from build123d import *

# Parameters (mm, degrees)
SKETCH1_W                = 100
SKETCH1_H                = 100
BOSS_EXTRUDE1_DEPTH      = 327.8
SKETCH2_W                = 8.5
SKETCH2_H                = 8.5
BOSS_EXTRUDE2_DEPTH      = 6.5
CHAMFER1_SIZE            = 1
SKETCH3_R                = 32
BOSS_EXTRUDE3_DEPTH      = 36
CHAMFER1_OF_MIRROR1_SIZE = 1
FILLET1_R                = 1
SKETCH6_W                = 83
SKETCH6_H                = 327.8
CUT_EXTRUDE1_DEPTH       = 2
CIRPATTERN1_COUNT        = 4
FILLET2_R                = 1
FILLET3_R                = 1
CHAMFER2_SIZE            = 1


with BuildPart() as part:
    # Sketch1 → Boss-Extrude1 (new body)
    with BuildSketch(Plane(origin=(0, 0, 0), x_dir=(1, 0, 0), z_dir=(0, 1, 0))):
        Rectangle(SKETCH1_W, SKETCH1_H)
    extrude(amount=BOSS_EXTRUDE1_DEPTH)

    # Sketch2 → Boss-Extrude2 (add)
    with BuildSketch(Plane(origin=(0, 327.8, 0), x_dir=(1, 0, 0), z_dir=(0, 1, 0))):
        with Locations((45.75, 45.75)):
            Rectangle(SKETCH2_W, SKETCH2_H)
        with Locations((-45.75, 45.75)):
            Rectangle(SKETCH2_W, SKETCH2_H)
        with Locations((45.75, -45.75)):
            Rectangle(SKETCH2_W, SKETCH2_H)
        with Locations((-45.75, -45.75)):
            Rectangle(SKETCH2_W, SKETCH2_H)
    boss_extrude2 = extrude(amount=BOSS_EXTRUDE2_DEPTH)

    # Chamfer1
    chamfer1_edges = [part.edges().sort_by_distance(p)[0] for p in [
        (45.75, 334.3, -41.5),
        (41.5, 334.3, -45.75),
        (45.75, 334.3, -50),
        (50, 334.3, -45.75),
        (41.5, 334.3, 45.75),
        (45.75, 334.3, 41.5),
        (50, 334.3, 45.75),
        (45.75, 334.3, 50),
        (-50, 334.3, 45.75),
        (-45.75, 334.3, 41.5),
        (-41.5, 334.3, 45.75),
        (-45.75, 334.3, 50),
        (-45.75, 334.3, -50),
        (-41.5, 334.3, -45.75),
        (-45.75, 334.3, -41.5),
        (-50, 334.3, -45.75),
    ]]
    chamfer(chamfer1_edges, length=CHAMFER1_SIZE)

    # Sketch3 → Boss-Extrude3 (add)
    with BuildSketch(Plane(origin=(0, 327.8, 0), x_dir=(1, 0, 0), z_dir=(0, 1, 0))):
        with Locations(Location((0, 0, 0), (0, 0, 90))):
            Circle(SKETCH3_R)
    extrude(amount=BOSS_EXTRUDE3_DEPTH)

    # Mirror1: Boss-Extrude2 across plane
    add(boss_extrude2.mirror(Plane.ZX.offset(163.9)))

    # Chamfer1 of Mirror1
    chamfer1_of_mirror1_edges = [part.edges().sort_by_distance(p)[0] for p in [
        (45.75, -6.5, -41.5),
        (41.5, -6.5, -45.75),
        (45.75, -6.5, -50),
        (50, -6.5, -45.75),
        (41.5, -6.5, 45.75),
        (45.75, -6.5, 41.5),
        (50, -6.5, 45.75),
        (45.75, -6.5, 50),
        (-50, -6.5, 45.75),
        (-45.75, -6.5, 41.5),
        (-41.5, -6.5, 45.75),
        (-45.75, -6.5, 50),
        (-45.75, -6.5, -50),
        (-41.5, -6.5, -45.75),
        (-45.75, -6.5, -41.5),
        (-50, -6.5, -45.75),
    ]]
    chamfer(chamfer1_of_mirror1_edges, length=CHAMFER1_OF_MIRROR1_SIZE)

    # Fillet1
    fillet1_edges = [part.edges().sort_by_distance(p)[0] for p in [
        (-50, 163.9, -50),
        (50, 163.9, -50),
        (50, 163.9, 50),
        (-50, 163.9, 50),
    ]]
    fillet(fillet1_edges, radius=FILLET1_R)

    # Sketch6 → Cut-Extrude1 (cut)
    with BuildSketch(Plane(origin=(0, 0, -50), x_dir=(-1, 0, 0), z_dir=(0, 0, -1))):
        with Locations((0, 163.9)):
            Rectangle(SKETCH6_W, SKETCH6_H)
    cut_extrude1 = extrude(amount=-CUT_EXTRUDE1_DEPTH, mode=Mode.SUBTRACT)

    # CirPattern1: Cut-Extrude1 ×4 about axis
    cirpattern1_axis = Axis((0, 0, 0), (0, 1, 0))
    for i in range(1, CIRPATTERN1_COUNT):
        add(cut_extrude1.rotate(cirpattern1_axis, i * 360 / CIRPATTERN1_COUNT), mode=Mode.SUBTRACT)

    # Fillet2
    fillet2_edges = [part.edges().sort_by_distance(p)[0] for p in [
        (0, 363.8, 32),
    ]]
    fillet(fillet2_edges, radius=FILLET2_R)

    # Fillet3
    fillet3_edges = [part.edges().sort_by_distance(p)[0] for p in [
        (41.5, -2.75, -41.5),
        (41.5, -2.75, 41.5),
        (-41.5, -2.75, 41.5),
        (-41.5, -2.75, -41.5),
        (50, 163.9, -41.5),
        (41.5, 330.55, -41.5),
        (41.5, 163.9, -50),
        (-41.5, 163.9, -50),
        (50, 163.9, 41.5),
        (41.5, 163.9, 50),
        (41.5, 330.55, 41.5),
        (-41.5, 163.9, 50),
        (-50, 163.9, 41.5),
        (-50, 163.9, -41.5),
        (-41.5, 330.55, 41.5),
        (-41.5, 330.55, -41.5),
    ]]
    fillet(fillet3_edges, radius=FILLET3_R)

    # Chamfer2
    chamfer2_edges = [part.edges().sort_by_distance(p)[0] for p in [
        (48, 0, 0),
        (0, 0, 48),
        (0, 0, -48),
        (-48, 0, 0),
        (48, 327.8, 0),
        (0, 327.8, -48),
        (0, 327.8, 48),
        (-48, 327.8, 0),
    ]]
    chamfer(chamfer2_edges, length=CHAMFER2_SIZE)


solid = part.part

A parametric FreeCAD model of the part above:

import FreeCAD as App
import Part
import Sketcher
Q = App.Units.Quantity


def edges_at(feature, points):
    """Names of the edges that pass closest to the given points."""
    edges = feature.Shape.Edges
    near = lambda p: min(range(len(edges)), key=lambda i: edges[i].distToShape(Part.Vertex(*p))[0])
    return sorted({f"Edge{near(p) + 1}" for p in points})

doc = App.newDocument("Part")
body = doc.addObject("PartDesign::Body", "Body")

sketch1 = body.newObject("Sketcher::SketchObject", "Sketch")
sketch1.AttachmentSupport = (doc.getObject("XZ_Plane"), [""])
sketch1.MapMode = "FlatFace"
sketch1.addGeometry([
    Part.LineSegment(App.Vector(-50, -50, 0), App.Vector(-50, 50, 0)),
    Part.LineSegment(App.Vector(-50, 50, 0), App.Vector(50, 50, 0)),
    Part.LineSegment(App.Vector(50, 50, 0), App.Vector(50, -50, 0)),
    Part.LineSegment(App.Vector(50, -50, 0), App.Vector(-50, -50, 0)),
], False)
sketch1.addConstraint([
    Sketcher.Constraint("Coincident", 0, 2, 1, 1),
    Sketcher.Constraint("Coincident", 1, 2, 2, 1),
    Sketcher.Constraint("Coincident", 2, 2, 3, 1),
    Sketcher.Constraint("Coincident", 3, 2, 0, 1),
    Sketcher.Constraint("Vertical", 0),
    Sketcher.Constraint("Horizontal", 1),
    Sketcher.Constraint("Vertical", 2),
    Sketcher.Constraint("Horizontal", 3),
    Sketcher.Constraint("Symmetric", 0, 2, 2, 2, -1, 1),
    Sketcher.Constraint("Equal", 3, 0),
    Sketcher.Constraint("DistanceX", 1, 1, 1, 2, Q("100 mm")),
])
pad1 = body.newObject("PartDesign::Pad", "Pad")
pad1.Profile = sketch1
pad1.Length = 327.8
pad1.Reversed = True

sketch2 = body.newObject("Sketcher::SketchObject", "Sketch001")
sketch2.AttachmentSupport = (doc.getObject("XZ_Plane"), [""])
sketch2.MapMode = "FlatFace"
sketch2.AttachmentOffset = App.Placement(App.Vector(0, 0, -327.8), App.Rotation())
sketch2.addGeometry([
    Part.LineSegment(App.Vector(41.5, -50, 0), App.Vector(41.5, -41.5, 0)),
    Part.LineSegment(App.Vector(41.5, -41.5, 0), App.Vector(50, -41.5, 0)),
    Part.LineSegment(App.Vector(50, -41.5, 0), App.Vector(50, -50, 0)),
    Part.LineSegment(App.Vector(50, -50, 0), App.Vector(41.5, -50, 0)),
    Part.LineSegment(App.Vector(-50, -50, 0), App.Vector(-50, -41.5, 0)),
    Part.LineSegment(App.Vector(-50, -41.5, 0), App.Vector(-41.5, -41.5, 0)),
    Part.LineSegment(App.Vector(-41.5, -41.5, 0), App.Vector(-41.5, -50, 0)),
    Part.LineSegment(App.Vector(-41.5, -50, 0), App.Vector(-50, -50, 0)),
    Part.LineSegment(App.Vector(41.5, 41.5, 0), App.Vector(41.5, 50, 0)),
    Part.LineSegment(App.Vector(41.5, 50, 0), App.Vector(50, 50, 0)),
    Part.LineSegment(App.Vector(50, 50, 0), App.Vector(50, 41.5, 0)),
    Part.LineSegment(App.Vector(50, 41.5, 0), App.Vector(41.5, 41.5, 0)),
    Part.LineSegment(App.Vector(-50, 41.5, 0), App.Vector(-50, 50, 0)),
    Part.LineSegment(App.Vector(-50, 50, 0), App.Vector(-41.5, 50, 0)),
    Part.LineSegment(App.Vector(-41.5, 50, 0), App.Vector(-41.5, 41.5, 0)),
    Part.LineSegment(App.Vector(-41.5, 41.5, 0), App.Vector(-50, 41.5, 0)),
], False)
sketch2.addConstraint([
    Sketcher.Constraint("Coincident", 0, 2, 1, 1),
    Sketcher.Constraint("Coincident", 1, 2, 2, 1),
    Sketcher.Constraint("Coincident", 2, 2, 3, 1),
    Sketcher.Constraint("Coincident", 3, 2, 0, 1),
    Sketcher.Constraint("Coincident", 4, 2, 5, 1),
    Sketcher.Constraint("Coincident", 5, 2, 6, 1),
    Sketcher.Constraint("Coincident", 6, 2, 7, 1),
    Sketcher.Constraint("Coincident", 7, 2, 4, 1),
    Sketcher.Constraint("Coincident", 8, 2, 9, 1),
    Sketcher.Constraint("Coincident", 9, 2, 10, 1),
    Sketcher.Constraint("Coincident", 10, 2, 11, 1),
    Sketcher.Constraint("Coincident", 11, 2, 8, 1),
    Sketcher.Constraint("Coincident", 12, 2, 13, 1),
    Sketcher.Constraint("Coincident", 13, 2, 14, 1),
    Sketcher.Constraint("Coincident", 14, 2, 15, 1),
    Sketcher.Constraint("Coincident", 15, 2, 12, 1),
    Sketcher.Constraint("Vertical", 0),
    Sketcher.Constraint("Horizontal", 1),
    Sketcher.Constraint("Vertical", 2),
    Sketcher.Constraint("Horizontal", 3),
    Sketcher.Constraint("Vertical", 4),
    Sketcher.Constraint("Horizontal", 5),
    Sketcher.Constraint("Vertical", 6),
    Sketcher.Constraint("Horizontal", 7),
    Sketcher.Constraint("Vertical", 8),
    Sketcher.Constraint("Horizontal", 9),
    Sketcher.Constraint("Vertical", 10),
    Sketcher.Constraint("Horizontal", 11),
    Sketcher.Constraint("Vertical", 12),
    Sketcher.Constraint("Horizontal", 13),
    Sketcher.Constraint("Vertical", 14),
    Sketcher.Constraint("Horizontal", 15),
    Sketcher.Constraint("Symmetric", 6, 2, 8, 2, -1, 1),
    Sketcher.Constraint("Symmetric", 4, 2, 10, 2, -1, 1),
    Sketcher.Constraint("Symmetric", 2, 2, 12, 2, -1, 1),
    Sketcher.Constraint("Symmetric", 0, 2, 14, 2, -1, 1),
    Sketcher.Constraint("Symmetric", 1, 2, 4, 2, -2),
    Sketcher.Constraint("Symmetric", 3, 2, 6, 2, -2),
    Sketcher.Constraint("Equal", 15, 0),
    Sketcher.Constraint("DistanceX", 1, 1, 1, 2, Q("8.5 mm")),
    Sketcher.Constraint("DistanceX", -1, 1, 1, 2, Q("50 mm")),
    Sketcher.Constraint("DistanceY", 2, 2, -1, 1, Q("50 mm")),
])
pad2 = body.newObject("PartDesign::Pad", "Pad001")
pad2.Profile = sketch2
pad2.Length = 6.5
pad2.Reversed = True
doc.recompute()

chamfer = body.newObject("PartDesign::Chamfer", "Chamfer")
chamfer.Base = (pad2, edges_at(pad2, [
    (45.75, 334.3, -41.5),
    (41.5, 334.3, -45.75),
    (45.75, 334.3, -50),
    (50, 334.3, -45.75),
    (41.5, 334.3, 45.75),
    (45.75, 334.3, 41.5),
    (50, 334.3, 45.75),
    (45.75, 334.3, 50),
    (-50, 334.3, 45.75),
    (-45.75, 334.3, 41.5),
    (-41.5, 334.3, 45.75),
    (-45.75, 334.3, 50),
    (-45.75, 334.3, -50),
    (-41.5, 334.3, -45.75),
    (-45.75, 334.3, -41.5),
    (-50, 334.3, -45.75),
]))
chamfer.Size = 1

sketch3 = body.newObject("Sketcher::SketchObject", "Sketch002")
sketch3.AttachmentSupport = (doc.getObject("XZ_Plane"), [""])
sketch3.MapMode = "FlatFace"
sketch3.AttachmentOffset = App.Placement(App.Vector(0, 0, -327.8), App.Rotation())
sketch3.addGeometry(Part.Circle(App.Vector(0, 0, 0), App.Vector(0, 0, 1), 32), False)
sketch3.addConstraint([
    Sketcher.Constraint("Coincident", 0, 3, -1, 1),
    Sketcher.Constraint("Diameter", 0, Q("64 mm")),
])
pad3 = body.newObject("PartDesign::Pad", "Pad002")
pad3.Profile = sketch3
pad3.Length = 36
pad3.Reversed = True
doc.recompute()

datumplane = body.newObject("PartDesign::Plane", "DatumPlane")
datumplane.AttachmentSupport = (doc.getObject("XZ_Plane"), [""])
datumplane.MapMode = "FlatFace"
datumplane.AttachmentOffset = App.Placement(App.Vector(0, 0, -163.9), App.Rotation())
mirrored = body.newObject("PartDesign::Mirrored", "Mirrored")
mirrored.Originals = [pad2]
mirrored.MirrorPlane = (datumplane, [""])
body.Tip = mirrored
doc.recompute()

chamfer2 = body.newObject("PartDesign::Chamfer", "Chamfer001")
chamfer2.Base = (mirrored, edges_at(mirrored, [
    (45.75, -6.5, -41.5),
    (41.5, -6.5, -45.75),
    (45.75, -6.5, -50),
    (50, -6.5, -45.75),
    (41.5, -6.5, 45.75),
    (45.75, -6.5, 41.5),
    (50, -6.5, 45.75),
    (45.75, -6.5, 50),
    (-50, -6.5, 45.75),
    (-45.75, -6.5, 41.5),
    (-41.5, -6.5, 45.75),
    (-45.75, -6.5, 50),
    (-45.75, -6.5, -50),
    (-41.5, -6.5, -45.75),
    (-45.75, -6.5, -41.5),
    (-50, -6.5, -45.75),
]))
chamfer2.Size = 1
doc.recompute()

fillet = body.newObject("PartDesign::Fillet", "Fillet")
fillet.Base = (chamfer2, edges_at(chamfer2, [
    (-50, 163.9, -50),
    (50, 163.9, -50),
    (50, 163.9, 50),
    (-50, 163.9, 50),
]))
fillet.Radius = 1

sketch4 = body.newObject("Sketcher::SketchObject", "Sketch003")
sketch4.AttachmentSupport = (doc.getObject("XY_Plane"), [""])
sketch4.MapMode = "FlatFace"
sketch4.AttachmentOffset = App.Placement(App.Vector(0, 0, -50), App.Rotation())
sketch4.addGeometry([
    Part.LineSegment(App.Vector(41.5, 327.8, 0), App.Vector(41.5, 0, 0)),
    Part.LineSegment(App.Vector(41.5, 0, 0), App.Vector(-41.5, 0, 0)),
    Part.LineSegment(App.Vector(-41.5, 0, 0), App.Vector(-41.5, 327.8, 0)),
    Part.LineSegment(App.Vector(-41.5, 327.8, 0), App.Vector(41.5, 327.8, 0)),
], False)
sketch4.addConstraint([
    Sketcher.Constraint("Coincident", 0, 2, 1, 1),
    Sketcher.Constraint("Coincident", 1, 2, 2, 1),
    Sketcher.Constraint("Coincident", 2, 2, 3, 1),
    Sketcher.Constraint("Coincident", 3, 2, 0, 1),
    Sketcher.Constraint("Vertical", 0),
    Sketcher.Constraint("Horizontal", 1),
    Sketcher.Constraint("Vertical", 2),
    Sketcher.Constraint("Horizontal", 3),
    Sketcher.Constraint("Symmetric", 0, 2, 1, 2, -1, 1),
    Sketcher.Constraint("DistanceX", 1, 2, 1, 1, Q("83 mm")),
    Sketcher.Constraint("DistanceY", 0, 2, 0, 1, Q("327.8 mm")),
])
pocket1 = body.newObject("PartDesign::Pocket", "Pocket")
pocket1.Profile = sketch4
pocket1.Length = 2
pocket1.Reversed = True
doc.recompute()

polarpattern = body.newObject("PartDesign::PolarPattern", "PolarPattern")
polarpattern.Originals = [pocket1]
polarpattern.Axis = (doc.getObject("Y_Axis"), [""])
polarpattern.Angle = 360
polarpattern.Occurrences = 4
body.Tip = polarpattern
doc.recompute()

fillet2 = body.newObject("PartDesign::Fillet", "Fillet001")
fillet2.Base = (polarpattern, edges_at(polarpattern, [(0, 363.8, 32)]))
fillet2.Radius = 1
doc.recompute()

fillet3 = body.newObject("PartDesign::Fillet", "Fillet002")
fillet3.Base = (fillet2, edges_at(fillet2, [
    (41.5, -2.75, -41.5),
    (41.5, -2.75, 41.5),
    (-41.5, -2.75, 41.5),
    (-41.5, -2.75, -41.5),
    (50, 163.9, -41.5),
    (41.5, 330.55, -41.5),
    (41.5, 163.9, -50),
    (-41.5, 163.9, -50),
    (50, 163.9, 41.5),
    (41.5, 163.9, 50),
    (41.5, 330.55, 41.5),
    (-41.5, 163.9, 50),
    (-50, 163.9, 41.5),
    (-50, 163.9, -41.5),
    (-41.5, 330.55, 41.5),
    (-41.5, 330.55, -41.5),
]))
fillet3.Radius = 1
doc.recompute()

chamfer3 = body.newObject("PartDesign::Chamfer", "Chamfer002")
chamfer3.Base = (fillet3, edges_at(fillet3, [
    (48, 0, 0),
    (0, 0, 48),
    (0, 0, -48),
    (-48, 0, 0),
    (48, 327.8, 0),
    (0, 327.8, -48),
    (0, 327.8, 48),
    (-48, 327.8, 0),
]))
chamfer3.Size = 1

doc.recompute()
